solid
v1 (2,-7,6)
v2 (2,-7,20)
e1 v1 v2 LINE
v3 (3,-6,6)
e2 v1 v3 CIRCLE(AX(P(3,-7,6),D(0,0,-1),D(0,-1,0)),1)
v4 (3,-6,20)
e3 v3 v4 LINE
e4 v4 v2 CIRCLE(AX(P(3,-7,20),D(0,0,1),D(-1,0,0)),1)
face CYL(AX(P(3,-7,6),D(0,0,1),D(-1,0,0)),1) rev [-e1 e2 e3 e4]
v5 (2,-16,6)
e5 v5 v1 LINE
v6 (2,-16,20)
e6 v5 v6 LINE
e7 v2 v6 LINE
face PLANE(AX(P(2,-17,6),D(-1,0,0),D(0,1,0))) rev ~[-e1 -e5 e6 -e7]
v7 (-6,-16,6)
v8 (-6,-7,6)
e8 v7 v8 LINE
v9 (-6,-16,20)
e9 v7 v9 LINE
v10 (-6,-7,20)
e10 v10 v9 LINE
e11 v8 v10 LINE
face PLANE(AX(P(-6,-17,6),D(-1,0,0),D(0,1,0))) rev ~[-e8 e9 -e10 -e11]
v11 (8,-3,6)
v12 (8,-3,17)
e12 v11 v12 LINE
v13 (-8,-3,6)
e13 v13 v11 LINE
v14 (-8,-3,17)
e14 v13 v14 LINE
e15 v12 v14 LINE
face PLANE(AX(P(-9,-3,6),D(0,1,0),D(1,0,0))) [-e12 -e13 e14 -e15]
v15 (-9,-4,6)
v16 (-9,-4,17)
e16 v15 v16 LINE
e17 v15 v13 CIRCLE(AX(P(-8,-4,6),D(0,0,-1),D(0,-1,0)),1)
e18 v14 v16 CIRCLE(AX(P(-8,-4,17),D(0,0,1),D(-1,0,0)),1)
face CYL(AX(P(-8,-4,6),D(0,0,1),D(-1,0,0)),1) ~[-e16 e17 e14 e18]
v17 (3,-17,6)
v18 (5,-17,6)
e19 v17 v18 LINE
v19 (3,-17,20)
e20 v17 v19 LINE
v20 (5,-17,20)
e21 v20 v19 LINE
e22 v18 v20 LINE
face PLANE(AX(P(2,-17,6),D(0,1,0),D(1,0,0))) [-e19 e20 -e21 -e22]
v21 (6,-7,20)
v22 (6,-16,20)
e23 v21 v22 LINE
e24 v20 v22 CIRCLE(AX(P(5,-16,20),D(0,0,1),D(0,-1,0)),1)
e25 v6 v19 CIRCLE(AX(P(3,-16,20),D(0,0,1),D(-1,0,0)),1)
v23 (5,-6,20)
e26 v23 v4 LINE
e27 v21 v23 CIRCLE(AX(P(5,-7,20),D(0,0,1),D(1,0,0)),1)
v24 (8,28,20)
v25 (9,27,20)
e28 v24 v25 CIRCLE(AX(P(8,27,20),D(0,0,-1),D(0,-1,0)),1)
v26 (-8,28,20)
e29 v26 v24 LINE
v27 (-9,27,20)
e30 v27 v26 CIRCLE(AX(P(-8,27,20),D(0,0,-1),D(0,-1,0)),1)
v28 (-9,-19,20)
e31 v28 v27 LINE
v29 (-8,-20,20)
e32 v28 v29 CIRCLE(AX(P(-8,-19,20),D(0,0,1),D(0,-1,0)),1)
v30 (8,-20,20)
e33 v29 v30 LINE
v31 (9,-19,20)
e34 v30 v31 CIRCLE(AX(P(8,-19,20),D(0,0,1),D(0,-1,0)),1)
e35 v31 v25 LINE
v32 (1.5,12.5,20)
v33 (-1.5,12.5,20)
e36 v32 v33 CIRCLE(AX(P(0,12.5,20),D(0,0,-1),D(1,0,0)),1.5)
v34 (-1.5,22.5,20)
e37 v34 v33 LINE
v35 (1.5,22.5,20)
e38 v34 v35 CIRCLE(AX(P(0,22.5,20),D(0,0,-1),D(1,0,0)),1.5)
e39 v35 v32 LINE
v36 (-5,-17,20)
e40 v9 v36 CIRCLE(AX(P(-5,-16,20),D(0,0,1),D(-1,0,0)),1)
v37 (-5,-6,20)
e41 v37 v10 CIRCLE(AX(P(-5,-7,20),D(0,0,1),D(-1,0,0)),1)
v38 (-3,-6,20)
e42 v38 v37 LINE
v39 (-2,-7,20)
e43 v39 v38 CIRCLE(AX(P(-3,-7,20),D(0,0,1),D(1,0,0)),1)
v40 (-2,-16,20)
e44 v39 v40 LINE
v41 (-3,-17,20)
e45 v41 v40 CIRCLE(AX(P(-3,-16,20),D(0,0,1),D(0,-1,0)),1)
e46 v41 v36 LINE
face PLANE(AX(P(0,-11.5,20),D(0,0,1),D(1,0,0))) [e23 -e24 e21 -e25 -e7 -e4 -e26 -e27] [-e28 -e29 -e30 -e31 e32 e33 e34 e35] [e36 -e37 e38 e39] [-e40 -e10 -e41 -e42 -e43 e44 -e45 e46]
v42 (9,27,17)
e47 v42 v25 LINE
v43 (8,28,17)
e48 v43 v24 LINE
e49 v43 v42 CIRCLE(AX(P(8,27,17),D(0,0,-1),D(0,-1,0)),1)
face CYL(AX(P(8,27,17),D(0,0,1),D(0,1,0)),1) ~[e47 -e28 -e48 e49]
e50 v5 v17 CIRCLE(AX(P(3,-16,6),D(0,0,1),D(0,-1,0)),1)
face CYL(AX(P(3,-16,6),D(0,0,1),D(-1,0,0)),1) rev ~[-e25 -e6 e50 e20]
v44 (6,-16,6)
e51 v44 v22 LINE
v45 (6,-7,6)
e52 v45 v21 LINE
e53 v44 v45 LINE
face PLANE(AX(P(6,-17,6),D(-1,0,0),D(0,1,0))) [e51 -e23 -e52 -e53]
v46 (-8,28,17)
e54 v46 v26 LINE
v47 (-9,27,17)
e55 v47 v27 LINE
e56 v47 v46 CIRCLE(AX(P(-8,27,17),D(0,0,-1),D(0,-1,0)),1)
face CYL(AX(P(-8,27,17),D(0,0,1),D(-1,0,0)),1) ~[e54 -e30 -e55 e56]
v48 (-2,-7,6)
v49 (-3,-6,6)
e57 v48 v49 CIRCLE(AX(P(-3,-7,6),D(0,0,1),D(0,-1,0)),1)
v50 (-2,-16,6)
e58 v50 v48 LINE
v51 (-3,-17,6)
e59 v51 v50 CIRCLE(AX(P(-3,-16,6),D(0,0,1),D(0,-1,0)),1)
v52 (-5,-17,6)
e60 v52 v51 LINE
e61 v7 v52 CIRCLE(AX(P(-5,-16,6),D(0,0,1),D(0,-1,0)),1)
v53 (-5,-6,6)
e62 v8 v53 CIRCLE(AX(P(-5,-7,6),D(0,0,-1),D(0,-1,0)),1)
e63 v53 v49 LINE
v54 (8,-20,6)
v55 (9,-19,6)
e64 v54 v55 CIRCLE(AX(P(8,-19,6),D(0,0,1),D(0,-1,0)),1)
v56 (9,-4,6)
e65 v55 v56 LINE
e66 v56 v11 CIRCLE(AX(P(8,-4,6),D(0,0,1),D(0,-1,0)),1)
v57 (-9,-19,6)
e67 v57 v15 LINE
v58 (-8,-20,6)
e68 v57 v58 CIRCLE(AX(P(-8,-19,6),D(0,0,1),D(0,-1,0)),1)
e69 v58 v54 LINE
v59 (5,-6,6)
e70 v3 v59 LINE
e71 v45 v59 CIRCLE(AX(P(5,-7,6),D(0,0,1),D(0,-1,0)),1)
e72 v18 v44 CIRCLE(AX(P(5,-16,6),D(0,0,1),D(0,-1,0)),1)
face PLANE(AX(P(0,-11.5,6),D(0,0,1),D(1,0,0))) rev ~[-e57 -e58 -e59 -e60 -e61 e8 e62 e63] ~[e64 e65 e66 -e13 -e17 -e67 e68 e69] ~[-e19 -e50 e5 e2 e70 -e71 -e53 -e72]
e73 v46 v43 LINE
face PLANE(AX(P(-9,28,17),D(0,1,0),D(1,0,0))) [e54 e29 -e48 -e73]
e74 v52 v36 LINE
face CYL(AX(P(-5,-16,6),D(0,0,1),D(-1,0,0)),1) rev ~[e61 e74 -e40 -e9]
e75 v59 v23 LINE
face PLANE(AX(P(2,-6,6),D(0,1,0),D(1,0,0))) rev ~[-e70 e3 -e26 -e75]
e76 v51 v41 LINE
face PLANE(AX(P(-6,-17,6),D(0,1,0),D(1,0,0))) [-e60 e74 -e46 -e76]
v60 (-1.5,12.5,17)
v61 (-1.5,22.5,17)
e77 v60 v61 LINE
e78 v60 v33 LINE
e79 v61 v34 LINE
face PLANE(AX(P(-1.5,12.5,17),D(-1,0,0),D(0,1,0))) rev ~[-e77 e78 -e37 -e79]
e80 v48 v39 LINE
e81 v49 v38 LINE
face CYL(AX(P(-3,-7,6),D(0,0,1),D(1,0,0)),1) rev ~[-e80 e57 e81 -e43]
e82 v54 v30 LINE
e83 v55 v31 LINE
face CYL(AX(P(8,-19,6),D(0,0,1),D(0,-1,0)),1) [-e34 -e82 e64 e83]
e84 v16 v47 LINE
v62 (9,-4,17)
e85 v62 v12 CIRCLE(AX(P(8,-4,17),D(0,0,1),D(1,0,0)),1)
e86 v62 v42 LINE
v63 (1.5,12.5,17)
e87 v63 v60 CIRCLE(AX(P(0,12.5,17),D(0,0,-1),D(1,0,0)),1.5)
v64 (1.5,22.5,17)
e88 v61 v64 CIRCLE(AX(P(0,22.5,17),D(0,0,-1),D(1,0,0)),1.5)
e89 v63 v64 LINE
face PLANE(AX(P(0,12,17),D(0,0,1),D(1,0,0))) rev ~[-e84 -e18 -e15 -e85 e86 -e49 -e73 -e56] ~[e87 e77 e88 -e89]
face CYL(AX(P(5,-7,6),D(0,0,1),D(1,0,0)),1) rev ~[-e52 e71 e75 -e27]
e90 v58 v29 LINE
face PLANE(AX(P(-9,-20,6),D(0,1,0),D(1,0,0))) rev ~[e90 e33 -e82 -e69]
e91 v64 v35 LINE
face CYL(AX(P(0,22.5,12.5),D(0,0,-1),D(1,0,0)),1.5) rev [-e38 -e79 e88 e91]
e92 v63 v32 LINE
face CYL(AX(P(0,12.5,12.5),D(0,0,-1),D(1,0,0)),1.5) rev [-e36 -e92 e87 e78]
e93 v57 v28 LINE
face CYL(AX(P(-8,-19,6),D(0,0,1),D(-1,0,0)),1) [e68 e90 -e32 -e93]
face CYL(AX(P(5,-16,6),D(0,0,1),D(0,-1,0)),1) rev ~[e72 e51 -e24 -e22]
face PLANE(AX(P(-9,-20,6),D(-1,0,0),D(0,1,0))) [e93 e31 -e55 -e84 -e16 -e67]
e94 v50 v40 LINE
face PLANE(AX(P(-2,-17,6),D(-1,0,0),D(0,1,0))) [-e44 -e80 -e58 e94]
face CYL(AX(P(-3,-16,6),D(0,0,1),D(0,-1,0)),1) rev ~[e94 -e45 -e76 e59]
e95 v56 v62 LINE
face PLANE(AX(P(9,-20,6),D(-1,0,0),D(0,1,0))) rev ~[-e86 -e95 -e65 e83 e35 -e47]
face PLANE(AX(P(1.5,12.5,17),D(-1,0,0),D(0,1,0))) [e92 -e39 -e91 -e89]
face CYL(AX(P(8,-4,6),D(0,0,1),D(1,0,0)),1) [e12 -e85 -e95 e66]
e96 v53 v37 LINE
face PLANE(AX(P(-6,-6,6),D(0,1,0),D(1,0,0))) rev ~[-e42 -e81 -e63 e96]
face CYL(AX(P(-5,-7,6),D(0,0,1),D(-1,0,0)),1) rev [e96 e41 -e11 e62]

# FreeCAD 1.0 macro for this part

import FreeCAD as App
import Part
import Sketcher
from FreeCAD import Vector
Q = App.Units.Quantity


def edges_at(feature, points):
    """Names of the edges that pass closest to the given points."""
    edges = feature.Shape.Edges
    near = lambda p: min(range(len(edges)), key=lambda i: edges[i].distToShape(Part.Vertex(*p))[0])
    return sorted({f"Edge{near(p) + 1}" for p in points})


def add_polygon(sketch, points):
    """Adds a closed chain of lines whose ends are joined by coincident constraints."""
    first, n = sketch.GeometryCount, len(points)
    for a, b in zip(points, points[1:] + points[:1]):
        sketch.addGeometry(Part.LineSegment(App.Vector(*a, 0), App.Vector(*b, 0)), False)
    for i in range(n):
        sketch.addConstraint(Sketcher.Constraint("Coincident", first + i, 2, first + (i + 1) % n, 1))

doc = App.newDocument("Part")
body = doc.addObject("PartDesign::Body", "Body")

sketch1 = body.newObject("Sketcher::SketchObject", "Sketch")
sketch1.AttachmentSupport = (doc.getObject("XY_Plane"), [""])
sketch1.MapMode = "FlatFace"
sketch1.AttachmentOffset = App.Placement(Vector(0, 0, 6), App.Rotation())
add_polygon(sketch1, [(-6, -6), (-6, -17), (-2, -17), (-2, -6)])
sketch1.addConstraint(Sketcher.Constraint("Vertical", 0))
sketch1.addConstraint(Sketcher.Constraint("Horizontal", 1))
sketch1.addConstraint(Sketcher.Constraint("Vertical", 2))
sketch1.addConstraint(Sketcher.Constraint("Horizontal", 3))
sketch1.addConstraint(Sketcher.Constraint("DistanceX", 1, 1, 1, 2, Q("4 mm")))
sketch1.addConstraint(Sketcher.Constraint("DistanceY", 0, 2, 0, 1, Q("11 mm")))
sketch1.addConstraint(Sketcher.Constraint("DistanceX", 0, 2, -1, 1, Q("6 mm")))
sketch1.addConstraint(Sketcher.Constraint("DistanceY", 0, 2, -1, 1, Q("17 mm")))
pad1 = body.newObject("PartDesign::Pad", "Pad")
pad1.Profile = sketch1
pad1.Length = 16
body2 = doc.addObject("PartDesign::Body", "Body001")
body2.AllowCompound = True

sketch2 = body2.newObject("Sketcher::SketchObject", "Sketch001")
sketch2.AttachmentSupport = (doc.getObject("XY_Plane001"), [""])
sketch2.MapMode = "FlatFace"
sketch2.AttachmentOffset = App.Placement(Vector(0, 0, 6), App.Rotation())
add_polygon(sketch2, [(2, -6), (2, -17), (6, -17), (6, -6)])
sketch2.addConstraint(Sketcher.Constraint("Vertical", 0))
sketch2.addConstraint(Sketcher.Constraint("Horizontal", 1))
sketch2.addConstraint(Sketcher.Constraint("Vertical", 2))
sketch2.addConstraint(Sketcher.Constraint("Horizontal", 3))
sketch2.addConstraint(Sketcher.Constraint("DistanceX", 1, 1, 1, 2, Q("4 mm")))
sketch2.addConstraint(Sketcher.Constraint("DistanceY", 0, 2, 0, 1, Q("11 mm")))
sketch2.addConstraint(Sketcher.Constraint("DistanceX", -1, 1, 0, 2, Q("2 mm")))
sketch2.addConstraint(Sketcher.Constraint("DistanceY", 0, 2, -1, 1, Q("17 mm")))
pad2 = body2.newObject("PartDesign::Pad", "Pad001")
pad2.Profile = sketch2
pad2.Length = 16
doc.recompute()

boolean = body2.newObject("PartDesign::Boolean", "Boolean")
boolean.Type = "Fuse"
boolean.addObjects([body])
doc.recompute()

fillet = body2.newObject("PartDesign::Fillet", "Fillet")
fillet.Base = (boolean, edges_at(boolean, [
    (2, -17, 14),
    (2, -6, 14),
    (6, -17, 14),
    (6, -6, 14),
    (-6, -17, 14),
    (-6, -6, 14),
    (-2, -17, 14),
    (-2, -6, 14),
]))
fillet.Radius = 1
body3 = doc.addObject("PartDesign::Body", "Body002")

sketch3 = body3.newObject("Sketcher::SketchObject", "Sketch002")
sketch3.AttachmentSupport = (doc.getObject("XY_Plane002"), [""])
sketch3.MapMode = "FlatFace"
sketch3.AttachmentOffset = App.Placement(Vector(0, 0, 6), App.Rotation())
add_polygon(sketch3, [(-9, -3), (-9, -20), (9, -20), (9, -3)])
sketch3.addConstraint(Sketcher.Constraint("Vertical", 0))
sketch3.addConstraint(Sketcher.Constraint("Horizontal", 1))
sketch3.addConstraint(Sketcher.Constraint("Vertical", 2))
sketch3.addConstraint(Sketcher.Constraint("Horizontal", 3))
sketch3.addConstraint(Sketcher.Constraint("DistanceX", 1, 1, 1, 2, Q("18 mm")))
sketch3.addConstraint(Sketcher.Constraint("DistanceY", 0, 2, 0, 1, Q("17 mm")))
sketch3.addConstraint(Sketcher.Constraint("DistanceX", 0, 2, -1, 1, Q("9 mm")))
sketch3.addConstraint(Sketcher.Constraint("DistanceY", 0, 2, -1, 1, Q("20 mm")))
pad3 = body3.newObject("PartDesign::Pad", "Pad002")
pad3.Profile = sketch3
pad3.Length = 14
doc.recompute()

fillet2 = body3.newObject("PartDesign::Fillet", "Fillet001")
fillet2.Base = (pad3, edges_at(pad3, [
    (-9, -20, 13),
    (-9, -3, 13),
    (9, -20, 13),
    (9, -3, 13),
]))
fillet2.Radius = 1
doc.recompute()

boolean2 = body3.newObject("PartDesign::Boolean", "Boolean001")
boolean2.Type = "Cut"
boolean2.addObjects([body2])
body4 = doc.addObject("PartDesign::Body", "Body003")

sketch4 = body4.newObject("Sketcher::SketchObject", "Sketch003")
sketch4.AttachmentSupport = (doc.getObject("XY_Plane003"), [""])
sketch4.MapMode = "FlatFace"
sketch4.AttachmentOffset = App.Placement(Vector(0, 0, 12.5), App.Rotation())
sketch4.addGeometry(Part.Circle(Vector(0, 12.5, 0), Vector(0, 0, 1), 1.5), False)
sketch4.addConstraint(Sketcher.Constraint("PointOnObject", 0, 3, -2))
sketch4.addConstraint(Sketcher.Constraint("Diameter", 0, Q("3 mm")))
sketch4.addConstraint(Sketcher.Constraint("DistanceY", -1, 1, 0, 3, Q("12.5 mm")))
pad4 = body4.newObject("PartDesign::Pad", "Pad003")
pad4.Profile = sketch4
pad4.Length = 10
body5 = doc.addObject("PartDesign::Body", "Body004")

sketch5 = body5.newObject("Sketcher::SketchObject", "Sketch004")
sketch5.AttachmentSupport = (doc.getObject("XY_Plane004"), [""])
sketch5.MapMode = "FlatFace"
sketch5.AttachmentOffset = App.Placement(Vector(0, 0, 12.5), App.Rotation())
sketch5.addGeometry(Part.Circle(Vector(0, 22.5, 0), Vector(0, 0, 1), 1.5), False)
sketch5.addConstraint(Sketcher.Constraint("PointOnObject", 0, 3, -2))
sketch5.addConstraint(Sketcher.Constraint("Diameter", 0, Q("3 mm")))
sketch5.addConstraint(Sketcher.Constraint("DistanceY", -1, 1, 0, 3, Q("22.5 mm")))
pad5 = body5.newObject("PartDesign::Pad", "Pad004")
pad5.Profile = sketch5
pad5.Length = 10
body6 = doc.addObject("PartDesign::Body", "Body005")

sketch6 = body6.newObject("Sketcher::SketchObject", "Sketch005")
sketch6.AttachmentSupport = (doc.getObject("XY_Plane005"), [""])
sketch6.MapMode = "FlatFace"
sketch6.AttachmentOffset = App.Placement(Vector(0, 0, 17), App.Rotation())
add_polygon(sketch6, [(-1.5, 22.5), (-1.5, 12.5), (1.5, 12.5), (1.5, 22.5)])
sketch6.addConstraint(Sketcher.Constraint("Vertical", 0))
sketch6.addConstraint(Sketcher.Constraint("Horizontal", 1))
sketch6.addConstraint(Sketcher.Constraint("Vertical", 2))
sketch6.addConstraint(Sketcher.Constraint("Horizontal", 3))
sketch6.addConstraint(Sketcher.Constraint("DistanceX", 1, 1, 1, 2, Q("3 mm")))
sketch6.addConstraint(Sketcher.Constraint("DistanceY", 0, 2, 0, 1, Q("10 mm")))
sketch6.addConstraint(Sketcher.Constraint("DistanceX", 0, 2, -1, 1, Q("1.5 mm")))
sketch6.addConstraint(Sketcher.Constraint("DistanceY", -1, 1, 0, 2, Q("12.5 mm")))
pad6 = body6.newObject("PartDesign::Pad", "Pad005")
pad6.Profile = sketch6
pad6.Length = 5
doc.recompute()

boolean3 = body6.newObject("PartDesign::Boolean", "Boolean002")
boolean3.Type = "Fuse"
boolean3.addObjects([body4])
doc.recompute()

boolean4 = body6.newObject("PartDesign::Boolean", "Boolean003")
boolean4.Type = "Fuse"
boolean4.addObjects([body5])
body7 = doc.addObject("PartDesign::Body", "Body006")

sketch7 = body7.newObject("Sketcher::SketchObject", "Sketch006")
sketch7.AttachmentSupport = (doc.getObject("XY_Plane006"), [""])
sketch7.MapMode = "FlatFace"
sketch7.AttachmentOffset = App.Placement(Vector(0, 0, 17), App.Rotation())
add_polygon(sketch7, [(-9, 28), (-9, -4), (9, -4), (9, 28)])
sketch7.addConstraint(Sketcher.Constraint("Vertical", 0))
sketch7.addConstraint(Sketcher.Constraint("Horizontal", 1))
sketch7.addConstraint(Sketcher.Constraint("Vertical", 2))
sketch7.addConstraint(Sketcher.Constraint("Horizontal", 3))
sketch7.addConstraint(Sketcher.Constraint("DistanceX", 1, 1, 1, 2, Q("18 mm")))
sketch7.addConstraint(Sketcher.Constraint("DistanceY", 0, 2, 0, 1, Q("32 mm")))
sketch7.addConstraint(Sketcher.Constraint("DistanceX", 0, 2, -1, 1, Q("9 mm")))
sketch7.addConstraint(Sketcher.Constraint("DistanceY", 0, 2, -1, 1, Q("4 mm")))
pad7 = body7.newObject("PartDesign::Pad", "Pad006")
pad7.Profile = sketch7
pad7.Length = 3
doc.recompute()

boolean5 = body7.newObject("PartDesign::Boolean", "Boolean004")
boolean5.Type = "Cut"
boolean5.addObjects([body6])
doc.recompute()

fillet3 = body7.newObject("PartDesign::Fillet", "Fillet002")
fillet3.Base = (boolean5, edges_at(boolean5, [(-9, 28, 18.5), (9, 28, 18.5)]))
fillet3.Radius = 1
doc.recompute()

boolean6 = body7.newObject("PartDesign::Boolean", "Boolean005")
boolean6.Type = "Fuse"
boolean6.addObjects([body3])

doc.recompute()
